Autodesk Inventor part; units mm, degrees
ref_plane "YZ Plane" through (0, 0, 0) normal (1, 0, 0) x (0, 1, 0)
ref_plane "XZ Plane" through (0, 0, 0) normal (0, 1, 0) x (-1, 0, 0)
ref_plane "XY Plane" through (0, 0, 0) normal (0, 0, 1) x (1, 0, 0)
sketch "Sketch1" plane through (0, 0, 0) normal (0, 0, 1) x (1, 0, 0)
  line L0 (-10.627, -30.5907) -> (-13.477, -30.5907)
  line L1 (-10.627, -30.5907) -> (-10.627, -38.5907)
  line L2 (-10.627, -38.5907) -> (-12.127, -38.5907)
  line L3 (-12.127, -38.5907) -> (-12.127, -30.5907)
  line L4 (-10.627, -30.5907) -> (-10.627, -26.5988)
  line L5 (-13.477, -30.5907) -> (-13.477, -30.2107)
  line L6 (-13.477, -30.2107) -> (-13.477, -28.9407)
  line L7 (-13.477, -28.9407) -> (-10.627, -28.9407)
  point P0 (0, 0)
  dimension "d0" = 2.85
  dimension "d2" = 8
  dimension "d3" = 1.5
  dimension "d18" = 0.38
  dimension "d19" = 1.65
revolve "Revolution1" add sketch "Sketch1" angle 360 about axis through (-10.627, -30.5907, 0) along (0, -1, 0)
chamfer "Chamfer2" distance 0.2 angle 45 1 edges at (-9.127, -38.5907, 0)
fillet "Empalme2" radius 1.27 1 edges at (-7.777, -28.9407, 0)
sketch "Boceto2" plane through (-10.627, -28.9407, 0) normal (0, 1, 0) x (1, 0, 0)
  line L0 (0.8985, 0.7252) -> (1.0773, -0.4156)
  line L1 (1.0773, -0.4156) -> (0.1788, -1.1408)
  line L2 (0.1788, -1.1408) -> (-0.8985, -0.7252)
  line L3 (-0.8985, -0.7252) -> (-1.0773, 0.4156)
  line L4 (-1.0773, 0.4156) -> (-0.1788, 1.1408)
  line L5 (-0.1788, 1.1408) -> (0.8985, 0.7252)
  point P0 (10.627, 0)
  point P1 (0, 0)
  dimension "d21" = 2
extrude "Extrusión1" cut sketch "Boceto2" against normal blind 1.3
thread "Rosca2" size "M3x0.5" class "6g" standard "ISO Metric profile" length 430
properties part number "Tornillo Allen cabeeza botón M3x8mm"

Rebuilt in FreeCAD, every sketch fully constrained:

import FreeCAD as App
import Part
import Sketcher
from FreeCAD import Vector


def edges_at(feature, points):
    """Names of the edges that pass closest to the given points."""
    edges = feature.Shape.Edges
    near = lambda p: min(range(len(edges)), key=lambda i: edges[i].distToShape(Part.Vertex(*p))[0])
    return sorted({f"Edge{near(p) + 1}" for p in points})

doc = App.newDocument("Part")
params = doc.addObject("Spreadsheet::Sheet", "Params")
for row, (alias, value) in enumerate([
    ("sketch1_height", "8 mm"),
    ("sketch1_width", "1.5 mm"),
    ("sketch1_width2", "2.85 mm"),
    ("sketch1_height2", "1.65 mm"),
    ("revolution_angle", "360 deg"),
    ("chamfer_size", "0.2 mm"),
    ("fillet_radius", "1.27 mm"),
    ("pocket1_length", "1.3 mm"),
], start=1):
    params.set(f"A{row}", alias)
    params.set(f"B{row}", "=" + value)
    params.setAlias(f"B{row}", alias)

body = doc.addObject("PartDesign::Body", "Body")

# Sketch on XY plane
sketch1 = doc.addObject("Sketcher::SketchObject", "Sketch")
body.addObject(sketch1)
sketch1.AttachmentSupport = (doc.XY_Plane, [""])
sketch1.MapMode = "FlatFace"
sketch1.addGeometry(Part.LineSegment(Vector(-10.6, -38.6, 0), Vector(-10.6, -28.9, 0)), False)
sketch1.addGeometry(Part.LineSegment(Vector(-10.6, -28.9, 0), Vector(-13.5, -28.9, 0)), False)
sketch1.addGeometry(Part.LineSegment(Vector(-13.5, -28.9, 0), Vector(-13.5, -30.6, 0)), False)
sketch1.addGeometry(Part.LineSegment(Vector(-13.5, -30.6, 0), Vector(-12.1, -30.6, 0)), False)
sketch1.addGeometry(Part.LineSegment(Vector(-12.1, -30.6, 0), Vector(-12.1, -38.6, 0)), False)
sketch1.addGeometry(Part.LineSegment(Vector(-12.1, -38.6, 0), Vector(-10.6, -38.6, 0)), False)
sketch1.addGeometry(Part.LineSegment(Vector(-10.6, -28.9, 0), Vector(-10.6, -38.6, 0)), True)  # axis
sketch1.addConstraint(Sketcher.Constraint("Coincident", 0, 2, 1, 1))
sketch1.addConstraint(Sketcher.Constraint("Coincident", 1, 2, 2, 1))
sketch1.addConstraint(Sketcher.Constraint("Coincident", 2, 2, 3, 1))
sketch1.addConstraint(Sketcher.Constraint("Coincident", 3, 2, 4, 1))
sketch1.addConstraint(Sketcher.Constraint("Coincident", 4, 2, 5, 1))
sketch1.addConstraint(Sketcher.Constraint("Coincident", 5, 2, 0, 1))
sketch1.addConstraint(Sketcher.Constraint("Vertical", 0))
sketch1.addConstraint(Sketcher.Constraint("Horizontal", 1))
sketch1.addConstraint(Sketcher.Constraint("Vertical", 2))
sketch1.addConstraint(Sketcher.Constraint("Horizontal", 3))
sketch1.addConstraint(Sketcher.Constraint("Vertical", 4))
sketch1.addConstraint(Sketcher.Constraint("Horizontal", 5))
sketch1.addConstraint(Sketcher.Constraint("Vertical", 6))
sketch1.addConstraint(Sketcher.Constraint("Coincident", 6, 1, 0, 2))
sketch1.addConstraint(Sketcher.Constraint("Horizontal", 4, 2, 6, 2))
sketch1.addConstraint(Sketcher.Constraint("DistanceY", 4, 2, 4, 1, 8.0))
sketch1.addConstraint(Sketcher.Constraint("DistanceX", 5, 1, 5, 2, 1.5))
sketch1.addConstraint(Sketcher.Constraint("DistanceX", 1, 2, 1, 1, 2.85))
sketch1.addConstraint(Sketcher.Constraint("DistanceY", 2, 2, 2, 1, 1.65))
sketch1.addConstraint(Sketcher.Constraint("DistanceX", 0, 2, -1, 1, 10.627))
sketch1.addConstraint(Sketcher.Constraint("DistanceY", 0, 2, -1, 1, 28.9407))
sketch1.setExpression("Constraints[15]", "Params.sketch1_height")
sketch1.setExpression("Constraints[16]", "Params.sketch1_width")
sketch1.setExpression("Constraints[17]", "Params.sketch1_width2")
sketch1.setExpression("Constraints[18]", "Params.sketch1_height2")
revolution = doc.addObject("PartDesign::Revolution", "Revolution")
body.addObject(revolution)
revolution.Profile = sketch1
revolution.ReferenceAxis = (sketch1, ["Axis0"])
revolution.setExpression("Angle", "Params.revolution_angle")
doc.recompute()

chamfer = doc.addObject("PartDesign::Chamfer", "Chamfer")
body.addObject(chamfer)
chamfer.Base = (revolution, edges_at(revolution, [(-9.127, -38.591, 0)]))
chamfer.setExpression("Size", "Params.chamfer_size")
doc.recompute()

fillet = doc.addObject("PartDesign::Fillet", "Fillet")
body.addObject(fillet)
fillet.Base = (chamfer, edges_at(chamfer, [(-7.777, -28.941, 0)]))
fillet.setExpression("Radius", "Params.fillet_radius")

# Sketch on XZ plane
sketch2 = doc.addObject("Sketcher::SketchObject", "Sketch001")
body.addObject(sketch2)
sketch2.AttachmentSupport = (doc.XZ_Plane, [""])
sketch2.MapMode = "FlatFace"
sketch2.AttachmentOffset = App.Placement(Vector(0, 0, 28.9407), App.Rotation())
sketch2.addGeometry(Part.LineSegment(Vector(-9.5, 0.4, 0), Vector(-9.7, -0.7, 0)), False)
sketch2.addGeometry(Part.LineSegment(Vector(-9.7, -0.7, 0), Vector(-10.8, -1.1, 0)), False)
sketch2.addGeometry(Part.LineSegment(Vector(-10.8, -1.1, 0), Vector(-11.7, -0.4, 0)), False)
sketch2.addGeometry(Part.LineSegment(Vector(-11.7, -0.4, 0), Vector(-11.5, 0.7, 0)), False)
sketch2.addGeometry(Part.LineSegment(Vector(-11.5, 0.7, 0), Vector(-10.4, 1.1, 0)), False)
sketch2.addGeometry(Part.LineSegment(Vector(-10.4, 1.1, 0), Vector(-9.5, 0.4, 0)), False)
sketch2.addConstraint(Sketcher.Constraint("Coincident", 0, 2, 1, 1))
sketch2.addConstraint(Sketcher.Constraint("Coincident", 1, 2, 2, 1))
sketch2.addConstraint(Sketcher.Constraint("Coincident", 2, 2, 3, 1))
sketch2.addConstraint(Sketcher.Constraint("Coincident", 3, 2, 4, 1))
sketch2.addConstraint(Sketcher.Constraint("Coincident", 4, 2, 5, 1))
sketch2.addConstraint(Sketcher.Constraint("Coincident", 5, 2, 0, 1))
sketch2.addConstraint(Sketcher.Constraint("Parallel", 0, 3))
sketch2.addConstraint(Sketcher.Constraint("Parallel", 1, 4))
sketch2.addConstraint(Sketcher.Constraint("Parallel", 2, 5))
sketch2.addConstraint(Sketcher.Constraint("Equal", 0, 1))
sketch2.addConstraint(Sketcher.Constraint("Equal", 1, 2))
sketch2.addConstraint(Sketcher.Constraint("Equal", 2, 3))
sketch2.addConstraint(Sketcher.Constraint("DistanceY", 1, 2, 3, 2, 1.866))
sketch2.addConstraint(Sketcher.Constraint("DistanceX", 3, 2, 0, 2, 1.797))
sketch2.addConstraint(Sketcher.Constraint("DistanceX", 2, 2, 4, 2, 1.256))
sketch2.addConstraint(Sketcher.Constraint("Distance", 0, 1.1547))
sketch2.addConstraint(Sketcher.Constraint("DistanceX", 0, 2, -1, 1, 9.7285))
sketch2.addConstraint(Sketcher.Constraint("DistanceY", 0, 2, -1, 1, 0.7252))
pocket1 = doc.addObject("PartDesign::Pocket", "Pocket")
body.addObject(pocket1)
pocket1.Profile = sketch2
pocket1.setExpression("Length", "Params.pocket1_length")
pocket1.Reversed = True

doc.recompute()
